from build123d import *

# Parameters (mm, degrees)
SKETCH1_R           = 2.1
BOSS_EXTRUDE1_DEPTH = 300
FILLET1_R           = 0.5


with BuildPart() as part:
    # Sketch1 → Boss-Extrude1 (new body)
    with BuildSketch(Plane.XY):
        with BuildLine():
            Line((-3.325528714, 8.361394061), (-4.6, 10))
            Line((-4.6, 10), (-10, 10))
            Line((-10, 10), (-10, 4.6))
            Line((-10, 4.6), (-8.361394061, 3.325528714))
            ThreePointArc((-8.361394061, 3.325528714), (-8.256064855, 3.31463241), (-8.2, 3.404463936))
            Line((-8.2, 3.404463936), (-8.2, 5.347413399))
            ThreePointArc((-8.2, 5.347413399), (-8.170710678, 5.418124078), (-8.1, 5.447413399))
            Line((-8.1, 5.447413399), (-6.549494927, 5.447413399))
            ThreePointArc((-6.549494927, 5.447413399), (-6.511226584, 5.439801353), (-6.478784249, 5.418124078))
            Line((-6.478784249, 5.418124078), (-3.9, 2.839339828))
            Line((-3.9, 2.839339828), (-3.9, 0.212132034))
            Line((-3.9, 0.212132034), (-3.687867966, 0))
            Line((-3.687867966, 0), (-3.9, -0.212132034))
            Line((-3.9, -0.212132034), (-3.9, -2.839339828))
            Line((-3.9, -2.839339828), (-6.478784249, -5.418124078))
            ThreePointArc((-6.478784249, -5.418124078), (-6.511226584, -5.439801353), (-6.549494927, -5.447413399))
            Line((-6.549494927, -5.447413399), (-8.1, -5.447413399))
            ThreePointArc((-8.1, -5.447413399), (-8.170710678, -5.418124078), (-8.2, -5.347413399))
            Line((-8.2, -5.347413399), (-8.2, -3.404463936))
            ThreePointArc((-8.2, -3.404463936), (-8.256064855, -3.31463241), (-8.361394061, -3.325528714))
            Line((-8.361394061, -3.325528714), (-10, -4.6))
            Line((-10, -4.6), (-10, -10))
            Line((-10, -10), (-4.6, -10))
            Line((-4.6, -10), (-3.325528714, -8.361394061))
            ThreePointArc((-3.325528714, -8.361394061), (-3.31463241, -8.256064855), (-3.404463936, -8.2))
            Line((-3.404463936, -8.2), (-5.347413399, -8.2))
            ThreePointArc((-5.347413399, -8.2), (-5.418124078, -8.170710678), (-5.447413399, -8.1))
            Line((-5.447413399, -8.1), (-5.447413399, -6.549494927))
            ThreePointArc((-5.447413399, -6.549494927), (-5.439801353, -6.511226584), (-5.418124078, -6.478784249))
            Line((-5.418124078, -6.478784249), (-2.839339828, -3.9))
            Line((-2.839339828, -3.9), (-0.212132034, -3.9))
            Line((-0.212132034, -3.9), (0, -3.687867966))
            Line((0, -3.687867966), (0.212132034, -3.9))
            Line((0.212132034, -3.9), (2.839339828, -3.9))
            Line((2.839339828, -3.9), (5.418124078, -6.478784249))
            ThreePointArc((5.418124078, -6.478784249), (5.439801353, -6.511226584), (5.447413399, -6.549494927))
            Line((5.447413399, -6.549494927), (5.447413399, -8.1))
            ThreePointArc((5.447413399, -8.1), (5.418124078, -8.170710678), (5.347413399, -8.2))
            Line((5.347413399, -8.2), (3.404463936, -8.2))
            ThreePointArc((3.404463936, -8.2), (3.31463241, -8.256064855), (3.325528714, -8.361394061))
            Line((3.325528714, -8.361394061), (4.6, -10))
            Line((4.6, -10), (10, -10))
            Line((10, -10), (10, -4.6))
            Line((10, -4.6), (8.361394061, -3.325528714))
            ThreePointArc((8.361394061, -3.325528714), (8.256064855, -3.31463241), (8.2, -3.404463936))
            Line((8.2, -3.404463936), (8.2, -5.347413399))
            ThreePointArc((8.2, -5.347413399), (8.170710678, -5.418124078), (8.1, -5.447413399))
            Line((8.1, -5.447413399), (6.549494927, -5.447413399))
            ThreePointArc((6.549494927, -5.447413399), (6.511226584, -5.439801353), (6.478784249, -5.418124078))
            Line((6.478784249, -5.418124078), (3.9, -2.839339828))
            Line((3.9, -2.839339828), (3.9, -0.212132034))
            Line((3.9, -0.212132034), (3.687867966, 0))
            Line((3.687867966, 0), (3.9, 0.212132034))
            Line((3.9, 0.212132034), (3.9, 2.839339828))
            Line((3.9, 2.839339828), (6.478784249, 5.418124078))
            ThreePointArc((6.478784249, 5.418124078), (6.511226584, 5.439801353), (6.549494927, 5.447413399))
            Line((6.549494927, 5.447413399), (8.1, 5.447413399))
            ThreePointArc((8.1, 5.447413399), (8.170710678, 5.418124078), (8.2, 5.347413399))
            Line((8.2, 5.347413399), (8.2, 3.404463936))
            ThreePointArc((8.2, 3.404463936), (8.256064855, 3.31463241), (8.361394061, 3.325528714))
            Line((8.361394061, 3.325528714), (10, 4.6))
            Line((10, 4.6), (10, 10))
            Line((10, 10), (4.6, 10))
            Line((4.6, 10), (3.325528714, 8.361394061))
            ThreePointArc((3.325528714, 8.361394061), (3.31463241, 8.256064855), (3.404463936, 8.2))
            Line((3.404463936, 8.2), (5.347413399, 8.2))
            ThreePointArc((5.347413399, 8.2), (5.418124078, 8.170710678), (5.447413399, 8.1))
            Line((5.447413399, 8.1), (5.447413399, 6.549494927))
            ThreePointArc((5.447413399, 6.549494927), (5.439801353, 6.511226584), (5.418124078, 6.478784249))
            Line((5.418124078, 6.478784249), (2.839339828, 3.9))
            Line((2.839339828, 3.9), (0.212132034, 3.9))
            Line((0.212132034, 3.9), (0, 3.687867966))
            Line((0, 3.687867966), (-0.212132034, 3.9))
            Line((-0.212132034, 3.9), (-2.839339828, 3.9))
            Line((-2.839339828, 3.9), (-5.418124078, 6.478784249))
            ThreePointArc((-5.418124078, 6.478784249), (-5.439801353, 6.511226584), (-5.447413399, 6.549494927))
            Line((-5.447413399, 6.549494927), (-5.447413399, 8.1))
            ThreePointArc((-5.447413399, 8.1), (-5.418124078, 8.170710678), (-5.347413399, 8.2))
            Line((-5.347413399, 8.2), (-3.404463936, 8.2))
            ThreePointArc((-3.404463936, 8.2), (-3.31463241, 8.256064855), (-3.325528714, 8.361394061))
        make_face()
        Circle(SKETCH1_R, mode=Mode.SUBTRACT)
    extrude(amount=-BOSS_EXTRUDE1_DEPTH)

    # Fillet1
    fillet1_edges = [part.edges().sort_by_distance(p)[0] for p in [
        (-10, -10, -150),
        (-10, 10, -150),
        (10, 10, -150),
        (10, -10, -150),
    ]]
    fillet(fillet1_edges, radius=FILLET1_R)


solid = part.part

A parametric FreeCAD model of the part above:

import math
import FreeCAD as App
import Part
import Sketcher


def edges_at(feature, points):
    """Names of the edges that pass closest to the given points."""
    edges = feature.Shape.Edges
    near = lambda p: min(range(len(edges)), key=lambda i: edges[i].distToShape(Part.Vertex(*p))[0])
    return sorted({f"Edge{near(p) + 1}" for p in points})

doc = App.newDocument("Part")
body = doc.addObject("PartDesign::Body", "Body")

# Sketch on XY plane
sketch1 = doc.addObject("Sketcher::SketchObject", "Sketch")
body.addObject(sketch1)
sketch1.AttachmentSupport = (doc.XY_Plane, [""])
sketch1.MapMode = "FlatFace"
sketch1.addGeometry(Part.LineSegment(App.Vector(-3.33, 8.36, 0), App.Vector(-4.6, 10, 0)), False)
sketch1.addGeometry(Part.LineSegment(App.Vector(-4.6, 10, 0), App.Vector(-10, 10, 0)), False)
sketch1.addGeometry(Part.LineSegment(App.Vector(-10, 10, 0), App.Vector(-10, 4.6, 0)), False)
sketch1.addGeometry(Part.LineSegment(App.Vector(-10, 4.6, 0), App.Vector(-8.36, 3.33, 0)), False)
sketch1.addGeometry(Part.ArcOfCircle(Part.Circle(App.Vector(-8.3, 3.4, 0), App.Vector(0, 0, 1), 0.1), math.radians(-128), math.radians(0)), False)
sketch1.addGeometry(Part.LineSegment(App.Vector(-8.2, 3.4, 0), App.Vector(-8.2, 5.35, 0)), False)
sketch1.addGeometry(Part.ArcOfCircle(Part.Circle(App.Vector(-8.1, 5.35, 0), App.Vector(0, 0, 1), 0.1), math.radians(90), math.radians(180)), False)
sketch1.addGeometry(Part.LineSegment(App.Vector(-8.1, 5.45, 0), App.Vector(-6.55, 5.45, 0)), False)
sketch1.addGeometry(Part.ArcOfCircle(Part.Circle(App.Vector(-6.55, 5.35, 0), App.Vector(0, 0, 1), 0.1), math.radians(45), math.radians(90)), False)
sketch1.addGeometry(Part.LineSegment(App.Vector(-6.48, 5.42, 0), App.Vector(-3.9, 2.84, 0)), False)
sketch1.addGeometry(Part.LineSegment(App.Vector(-3.9, 2.84, 0), App.Vector(-3.9, 0.21, 0)), False)
sketch1.addGeometry(Part.LineSegment(App.Vector(-3.9, 0.21, 0), App.Vector(-3.69, 0, 0)), False)
sketch1.addGeometry(Part.LineSegment(App.Vector(-3.69, 0, 0), App.Vector(-3.9, -0.21, 0)), False)
sketch1.addGeometry(Part.LineSegment(App.Vector(-3.9, -0.21, 0), App.Vector(-3.9, -2.84, 0)), False)
sketch1.addGeometry(Part.LineSegment(App.Vector(-3.9, -2.84, 0), App.Vector(-6.48, -5.42, 0)), False)
sketch1.addGeometry(Part.ArcOfCircle(Part.Circle(App.Vector(-6.55, -5.35, 0), App.Vector(0, 0, 1), 0.1), math.radians(-90), math.radians(-45)), False)
sketch1.addGeometry(Part.LineSegment(App.Vector(-6.55, -5.45, 0), App.Vector(-8.1, -5.45, 0)), False)
sketch1.addGeometry(Part.ArcOfCircle(Part.Circle(App.Vector(-8.1, -5.35, 0), App.Vector(0, 0, 1), 0.1), math.radians(180), math.radians(270)), False)
sketch1.addGeometry(Part.LineSegment(App.Vector(-8.2, -5.35, 0), App.Vector(-8.2, -3.4, 0)), False)
sketch1.addGeometry(Part.ArcOfCircle(Part.Circle(App.Vector(-8.3, -3.4, 0), App.Vector(0, 0, 1), 0.1), math.radians(0), math.radians(128)), False)
sketch1.addGeometry(Part.LineSegment(App.Vector(-8.36, -3.33, 0), App.Vector(-10, -4.6, 0)), False)
sketch1.addGeometry(Part.LineSegment(App.Vector(-10, -4.6, 0), App.Vector(-10, -10, 0)), False)
sketch1.addGeometry(Part.LineSegment(App.Vector(-10, -10, 0), App.Vector(-4.6, -10, 0)), False)
sketch1.addGeometry(Part.LineSegment(App.Vector(-4.6, -10, 0), App.Vector(-3.33, -8.36, 0)), False)
sketch1.addGeometry(Part.ArcOfCircle(Part.Circle(App.Vector(-3.4, -8.3, 0), App.Vector(0, 0, 1), 0.1), math.radians(-38), math.radians(90)), False)
sketch1.addGeometry(Part.LineSegment(App.Vector(-3.4, -8.2, 0), App.Vector(-5.35, -8.2, 0)), False)
sketch1.addGeometry(Part.ArcOfCircle(Part.Circle(App.Vector(-5.35, -8.1, 0), App.Vector(0, 0, 1), 0.1), math.radians(180), math.radians(270)), False)
sketch1.addGeometry(Part.LineSegment(App.Vector(-5.45, -8.1, 0), App.Vector(-5.45, -6.55, 0)), False)
sketch1.addGeometry(Part.ArcOfCircle(Part.Circle(App.Vector(-5.35, -6.55, 0), App.Vector(0, 0, 1), 0.1), math.radians(135), math.radians(180)), False)
sketch1.addGeometry(Part.LineSegment(App.Vector(-5.42, -6.48, 0), App.Vector(-2.84, -3.9, 0)), False)
sketch1.addGeometry(Part.LineSegment(App.Vector(-2.84, -3.9, 0), App.Vector(-0.21, -3.9, 0)), False)
sketch1.addGeometry(Part.LineSegment(App.Vector(-0.21, -3.9, 0), App.Vector(0, -3.69, 0)), False)
sketch1.addGeometry(Part.LineSegment(App.Vector(0, -3.69, 0), App.Vector(0.21, -3.9, 0)), False)
sketch1.addGeometry(Part.LineSegment(App.Vector(0.21, -3.9, 0), App.Vector(2.84, -3.9, 0)), False)
sketch1.addGeometry(Part.LineSegment(App.Vector(2.84, -3.9, 0), App.Vector(5.42, -6.48, 0)), False)
sketch1.addGeometry(Part.ArcOfCircle(Part.Circle(App.Vector(5.35, -6.55, 0), App.Vector(0, 0, 1), 0.1), math.radians(0), math.radians(45)), False)
sketch1.addGeometry(Part.LineSegment(App.Vector(5.45, -6.55, 0), App.Vector(5.45, -8.1, 0)), False)
sketch1.addGeometry(Part.ArcOfCircle(Part.Circle(App.Vector(5.35, -8.1, 0), App.Vector(0, 0, 1), 0.1), math.radians(-90), math.radians(0)), False)
sketch1.addGeometry(Part.LineSegment(App.Vector(5.35, -8.2, 0), App.Vector(3.4, -8.2, 0)), False)
sketch1.addGeometry(Part.ArcOfCircle(Part.Circle(App.Vector(3.4, -8.3, 0), App.Vector(0, 0, 1), 0.1), math.radians(90), math.radians(218)), False)
sketch1.addGeometry(Part.LineSegment(App.Vector(3.33, -8.36, 0), App.Vector(4.6, -10, 0)), False)
sketch1.addGeometry(Part.LineSegment(App.Vector(4.6, -10, 0), App.Vector(10, -10, 0)), False)
sketch1.addGeometry(Part.LineSegment(App.Vector(10, -10, 0), App.Vector(10, -4.6, 0)), False)
sketch1.addGeometry(Part.LineSegment(App.Vector(10, -4.6, 0), App.Vector(8.36, -3.33, 0)), False)
sketch1.addGeometry(Part.ArcOfCircle(Part.Circle(App.Vector(8.3, -3.4, 0), App.Vector(0, 0, 1), 0.1), math.radians(52), math.radians(180)), False)
sketch1.addGeometry(Part.LineSegment(App.Vector(8.2, -3.4, 0), App.Vector(8.2, -5.35, 0)), False)
sketch1.addGeometry(Part.ArcOfCircle(Part.Circle(App.Vector(8.1, -5.35, 0), App.Vector(0, 0, 1), 0.1), math.radians(-90), math.radians(0)), False)
sketch1.addGeometry(Part.LineSegment(App.Vector(8.1, -5.45, 0), App.Vector(6.55, -5.45, 0)), False)
sketch1.addGeometry(Part.ArcOfCircle(Part.Circle(App.Vector(6.55, -5.35, 0), App.Vector(0, 0, 1), 0.1), math.radians(-135), math.radians(-90)), False)
sketch1.addGeometry(Part.LineSegment(App.Vector(6.48, -5.42, 0), App.Vector(3.9, -2.84, 0)), False)
sketch1.addGeometry(Part.LineSegment(App.Vector(3.9, -2.84, 0), App.Vector(3.9, -0.21, 0)), False)
sketch1.addGeometry(Part.LineSegment(App.Vector(3.9, -0.21, 0), App.Vector(3.69, 0, 0)), False)
sketch1.addGeometry(Part.LineSegment(App.Vector(3.69, 0, 0), App.Vector(3.9, 0.21, 0)), False)
sketch1.addGeometry(Part.LineSegment(App.Vector(3.9, 0.21, 0), App.Vector(3.9, 2.84, 0)), False)
sketch1.addGeometry(Part.LineSegment(App.Vector(3.9, 2.84, 0), App.Vector(6.48, 5.42, 0)), False)
sketch1.addGeometry(Part.ArcOfCircle(Part.Circle(App.Vector(6.55, 5.35, 0), App.Vector(0, 0, 1), 0.1), math.radians(90), math.radians(135)), False)
sketch1.addGeometry(Part.LineSegment(App.Vector(6.55, 5.45, 0), App.Vector(8.1, 5.45, 0)), False)
sketch1.addGeometry(Part.ArcOfCircle(Part.Circle(App.Vector(8.1, 5.35, 0), App.Vector(0, 0, 1), 0.1), math.radians(0), math.radians(90)), False)
sketch1.addGeometry(Part.LineSegment(App.Vector(8.2, 5.35, 0), App.Vector(8.2, 3.4, 0)), False)
sketch1.addGeometry(Part.ArcOfCircle(Part.Circle(App.Vector(8.3, 3.4, 0), App.Vector(0, 0, 1), 0.1), math.radians(180), math.radians(308)), False)
sketch1.addGeometry(Part.LineSegment(App.Vector(8.36, 3.33, 0), App.Vector(10, 4.6, 0)), False)
sketch1.addGeometry(Part.LineSegment(App.Vector(10, 4.6, 0), App.Vector(10, 10, 0)), False)
sketch1.addGeometry(Part.LineSegment(App.Vector(10, 10, 0), App.Vector(4.6, 10, 0)), False)
sketch1.addGeometry(Part.LineSegment(App.Vector(4.6, 10, 0), App.Vector(3.33, 8.36, 0)), False)
sketch1.addGeometry(Part.ArcOfCircle(Part.Circle(App.Vector(3.4, 8.3, 0), App.Vector(0, 0, 1), 0.1), math.radians(142), math.radians(270)), False)
sketch1.addGeometry(Part.LineSegment(App.Vector(3.4, 8.2, 0), App.Vector(5.35, 8.2, 0)), False)
sketch1.addGeometry(Part.ArcOfCircle(Part.Circle(App.Vector(5.35, 8.1, 0), App.Vector(0, 0, 1), 0.1), math.radians(0), math.radians(90)), False)
sketch1.addGeometry(Part.LineSegment(App.Vector(5.45, 8.1, 0), App.Vector(5.45, 6.55, 0)), False)
sketch1.addGeometry(Part.ArcOfCircle(Part.Circle(App.Vector(5.35, 6.55, 0), App.Vector(0, 0, 1), 0.1), math.radians(-45), math.radians(0)), False)
sketch1.addGeometry(Part.LineSegment(App.Vector(5.42, 6.48, 0), App.Vector(2.84, 3.9, 0)), False)
sketch1.addGeometry(Part.LineSegment(App.Vector(2.84, 3.9, 0), App.Vector(0.21, 3.9, 0)), False)
sketch1.addGeometry(Part.LineSegment(App.Vector(0.21, 3.9, 0), App.Vector(0, 3.69, 0)), False)
sketch1.addGeometry(Part.LineSegment(App.Vector(0, 3.69, 0), App.Vector(-0.21, 3.9, 0)), False)
sketch1.addGeometry(Part.LineSegment(App.Vector(-0.21, 3.9, 0), App.Vector(-2.84, 3.9, 0)), False)
sketch1.addGeometry(Part.LineSegment(App.Vector(-2.84, 3.9, 0), App.Vector(-5.42, 6.48, 0)), False)
sketch1.addGeometry(Part.ArcOfCircle(Part.Circle(App.Vector(-5.35, 6.55, 0), App.Vector(0, 0, 1), 0.1), math.radians(180), math.radians(225)), False)
sketch1.addGeometry(Part.LineSegment(App.Vector(-5.45, 6.55, 0), App.Vector(-5.45, 8.1, 0)), False)
sketch1.addGeometry(Part.ArcOfCircle(Part.Circle(App.Vector(-5.35, 8.1, 0), App.Vector(0, 0, 1), 0.1), math.radians(90), math.radians(180)), False)
sketch1.addGeometry(Part.LineSegment(App.Vector(-5.35, 8.2, 0), App.Vector(-3.4, 8.2, 0)), False)
sketch1.addGeometry(Part.ArcOfCircle(Part.Circle(App.Vector(-3.4, 8.3, 0), App.Vector(0, 0, 1), 0.1), math.radians(-90), math.radians(38)), False)
sketch1.addGeometry(Part.Circle(App.Vector(0, 0, 0), App.Vector(0, 0, 1), 2.1), False)
sketch1.addConstraint(Sketcher.Constraint("Coincident", 0, 2, 1, 1))
sketch1.addConstraint(Sketcher.Constraint("Coincident", 1, 2, 2, 1))
sketch1.addConstraint(Sketcher.Constraint("Coincident", 2, 2, 3, 1))
sketch1.addConstraint(Sketcher.Constraint("Tangent", 3, 2, 4, 1))
sketch1.addConstraint(Sketcher.Constraint("Tangent", 4, 2, 5, 1))
sketch1.addConstraint(Sketcher.Constraint("Tangent", 5, 2, 6, 2))
sketch1.addConstraint(Sketcher.Constraint("Tangent", 6, 1, 7, 1))
sketch1.addConstraint(Sketcher.Constraint("Tangent", 7, 2, 8, 2))
sketch1.addConstraint(Sketcher.Constraint("Tangent", 8, 1, 9, 1))
sketch1.addConstraint(Sketcher.Constraint("Coincident", 9, 2, 10, 1))
sketch1.addConstraint(Sketcher.Constraint("Coincident", 10, 2, 11, 1))
sketch1.addConstraint(Sketcher.Constraint("Coincident", 11, 2, 12, 1))
sketch1.addConstraint(Sketcher.Constraint("Coincident", 12, 2, 13, 1))
sketch1.addConstraint(Sketcher.Constraint("Coincident", 13, 2, 14, 1))
sketch1.addConstraint(Sketcher.Constraint("Tangent", 14, 2, 15, 2))
sketch1.addConstraint(Sketcher.Constraint("Tangent", 15, 1, 16, 1))
sketch1.addConstraint(Sketcher.Constraint("Tangent", 16, 2, 17, 2))
sketch1.addConstraint(Sketcher.Constraint("Tangent", 17, 1, 18, 1))
sketch1.addConstraint(Sketcher.Constraint("Tangent", 18, 2, 19, 1))
sketch1.addConstraint(Sketcher.Constraint("Tangent", 19, 2, 20, 1))
sketch1.addConstraint(Sketcher.Constraint("Coincident", 20, 2, 21, 1))
sketch1.addConstraint(Sketcher.Constraint("Coincident", 21, 2, 22, 1))
sketch1.addConstraint(Sketcher.Constraint("Coincident", 22, 2, 23, 1))
sketch1.addConstraint(Sketcher.Constraint("Tangent", 23, 2, 24, 1))
sketch1.addConstraint(Sketcher.Constraint("Tangent", 24, 2, 25, 1))
sketch1.addConstraint(Sketcher.Constraint("Tangent", 25, 2, 26, 2))
sketch1.addConstraint(Sketcher.Constraint("Tangent", 26, 1, 27, 1))
sketch1.addConstraint(Sketcher.Constraint("Tangent", 27, 2, 28, 2))
sketch1.addConstraint(Sketcher.Constraint("Tangent", 28, 1, 29, 1))
sketch1.addConstraint(Sketcher.Constraint("Coincident", 29, 2, 30, 1))
sketch1.addConstraint(Sketcher.Constraint("Coincident", 30, 2, 31, 1))
sketch1.addConstraint(Sketcher.Constraint("Coincident", 31, 2, 32, 1))
sketch1.addConstraint(Sketcher.Constraint("Coincident", 32, 2, 33, 1))
sketch1.addConstraint(Sketcher.Constraint("Coincident", 33, 2, 34, 1))
sketch1.addConstraint(Sketcher.Constraint("Tangent", 34, 2, 35, 2))
sketch1.addConstraint(Sketcher.Constraint("Tangent", 35, 1, 36, 1))
sketch1.addConstraint(Sketcher.Constraint("Tangent", 36, 2, 37, 2))
sketch1.addConstraint(Sketcher.Constraint("Tangent", 37, 1, 38, 1))
sketch1.addConstraint(Sketcher.Constraint("Tangent", 38, 2, 39, 1))
sketch1.addConstraint(Sketcher.Constraint("Tangent", 39, 2, 40, 1))
sketch1.addConstraint(Sketcher.Constraint("Coincident", 40, 2, 41, 1))
sketch1.addConstraint(Sketcher.Constraint("Coincident", 41, 2, 42, 1))
sketch1.addConstraint(Sketcher.Constraint("Coincident", 42, 2, 43, 1))
sketch1.addConstraint(Sketcher.Constraint("Tangent", 43, 2, 44, 1))
sketch1.addConstraint(Sketcher.Constraint("Tangent", 44, 2, 45, 1))
sketch1.addConstraint(Sketcher.Constraint("Tangent", 45, 2, 46, 2))
sketch1.addConstraint(Sketcher.Constraint("Tangent", 46, 1, 47, 1))
sketch1.addConstraint(Sketcher.Constraint("Tangent", 47, 2, 48, 2))
sketch1.addConstraint(Sketcher.Constraint("Tangent", 48, 1, 49, 1))
sketch1.addConstraint(Sketcher.Constraint("Coincident", 49, 2, 50, 1))
sketch1.addConstraint(Sketcher.Constraint("Coincident", 50, 2, 51, 1))
sketch1.addConstraint(Sketcher.Constraint("Coincident", 51, 2, 52, 1))
sketch1.addConstraint(Sketcher.Constraint("Coincident", 52, 2, 53, 1))
sketch1.addConstraint(Sketcher.Constraint("Coincident", 53, 2, 54, 1))
sketch1.addConstraint(Sketcher.Constraint("Tangent", 54, 2, 55, 2))
sketch1.addConstraint(Sketcher.Constraint("Tangent", 55, 1, 56, 1))
sketch1.addConstraint(Sketcher.Constraint("Tangent", 56, 2, 57, 2))
sketch1.addConstraint(Sketcher.Constraint("Tangent", 57, 1, 58, 1))
sketch1.addConstraint(Sketcher.Constraint("Tangent", 58, 2, 59, 1))
sketch1.addConstraint(Sketcher.Constraint("Tangent", 59, 2, 60, 1))
sketch1.addConstraint(Sketcher.Constraint("Coincident", 60, 2, 61, 1))
sketch1.addConstraint(Sketcher.Constraint("Coincident", 61, 2, 62, 1))
sketch1.addConstraint(Sketcher.Constraint("Coincident", 62, 2, 63, 1))
sketch1.addConstraint(Sketcher.Constraint("Tangent", 63, 2, 64, 1))
sketch1.addConstraint(Sketcher.Constraint("Tangent", 64, 2, 65, 1))
sketch1.addConstraint(Sketcher.Constraint("Tangent", 65, 2, 66, 2))
sketch1.addConstraint(Sketcher.Constraint("Tangent", 66, 1, 67, 1))
sketch1.addConstraint(Sketcher.Constraint("Tangent", 67, 2, 68, 2))
sketch1.addConstraint(Sketcher.Constraint("Tangent", 68, 1, 69, 1))
sketch1.addConstraint(Sketcher.Constraint("Coincident", 69, 2, 70, 1))
sketch1.addConstraint(Sketcher.Constraint("Coincident", 70, 2, 71, 1))
sketch1.addConstraint(Sketcher.Constraint("Coincident", 71, 2, 72, 1))
sketch1.addConstraint(Sketcher.Constraint("Coincident", 72, 2, 73, 1))
sketch1.addConstraint(Sketcher.Constraint("Coincident", 73, 2, 74, 1))
sketch1.addConstraint(Sketcher.Constraint("Tangent", 74, 2, 75, 2))
sketch1.addConstraint(Sketcher.Constraint("Tangent", 75, 1, 76, 1))
sketch1.addConstraint(Sketcher.Constraint("Tangent", 76, 2, 77, 2))
sketch1.addConstraint(Sketcher.Constraint("Tangent", 77, 1, 78, 1))
sketch1.addConstraint(Sketcher.Constraint("Tangent", 78, 2, 79, 1))
sketch1.addConstraint(Sketcher.Constraint("Tangent", 79, 2, 0, 1))
sketch1.addConstraint(Sketcher.Constraint("Horizontal", 1))
sketch1.addConstraint(Sketcher.Constraint("Vertical", 2))
sketch1.addConstraint(Sketcher.Constraint("Vertical", 5))
sketch1.addConstraint(Sketcher.Constraint("Horizontal", 7))
sketch1.addConstraint(Sketcher.Constraint("Vertical", 10))
sketch1.addConstraint(Sketcher.Constraint("Vertical", 13))
sketch1.addConstraint(Sketcher.Constraint("Horizontal", 16))
sketch1.addConstraint(Sketcher.Constraint("Vertical", 18))
sketch1.addConstraint(Sketcher.Constraint("Vertical", 21))
sketch1.addConstraint(Sketcher.Constraint("Horizontal", 22))
sketch1.addConstraint(Sketcher.Constraint("Horizontal", 25))
sketch1.addConstraint(Sketcher.Constraint("Vertical", 27))
sketch1.addConstraint(Sketcher.Constraint("Horizontal", 30))
sketch1.addConstraint(Sketcher.Constraint("Horizontal", 33))
sketch1.addConstraint(Sketcher.Constraint("Vertical", 36))
sketch1.addConstraint(Sketcher.Constraint("Horizontal", 38))
sketch1.addConstraint(Sketcher.Constraint("Horizontal", 41))
sketch1.addConstraint(Sketcher.Constraint("Vertical", 42))
sketch1.addConstraint(Sketcher.Constraint("Vertical", 45))
sketch1.addConstraint(Sketcher.Constraint("Horizontal", 47))
sketch1.addConstraint(Sketcher.Constraint("Vertical", 50))
sketch1.addConstraint(Sketcher.Constraint("Vertical", 53))
sketch1.addConstraint(Sketcher.Constraint("Horizontal", 56))
sketch1.addConstraint(Sketcher.Constraint("Vertical", 58))
sketch1.addConstraint(Sketcher.Constraint("Vertical", 61))
sketch1.addConstraint(Sketcher.Constraint("Horizontal", 62))
sketch1.addConstraint(Sketcher.Constraint("Horizontal", 65))
sketch1.addConstraint(Sketcher.Constraint("Vertical", 67))
sketch1.addConstraint(Sketcher.Constraint("Horizontal", 70))
sketch1.addConstraint(Sketcher.Constraint("Horizontal", 73))
sketch1.addConstraint(Sketcher.Constraint("Vertical", 76))
sketch1.addConstraint(Sketcher.Constraint("Horizontal", 78))
sketch1.addConstraint(Sketcher.Constraint("Coincident", 80, 3, -1, 1))
sketch1.addConstraint(Sketcher.Constraint("Equal", 4, 6))
sketch1.addConstraint(Sketcher.Constraint("Equal", 6, 8))
sketch1.addConstraint(Sketcher.Constraint("Equal", 8, 15))
sketch1.addConstraint(Sketcher.Constraint("Equal", 15, 17))
sketch1.addConstraint(Sketcher.Constraint("Equal", 17, 19))
sketch1.addConstraint(Sketcher.Constraint("Equal", 19, 24))
sketch1.addConstraint(Sketcher.Constraint("Equal", 24, 26))
sketch1.addConstraint(Sketcher.Constraint("Equal", 26, 28))
sketch1.addConstraint(Sketcher.Constraint("Equal", 28, 35))
sketch1.addConstraint(Sketcher.Constraint("Equal", 35, 37))
sketch1.addConstraint(Sketcher.Constraint("Equal", 37, 39))
sketch1.addConstraint(Sketcher.Constraint("Equal", 39, 44))
sketch1.addConstraint(Sketcher.Constraint("Equal", 44, 46))
sketch1.addConstraint(Sketcher.Constraint("Equal", 46, 48))
sketch1.addConstraint(Sketcher.Constraint("Equal", 48, 55))
sketch1.addConstraint(Sketcher.Constraint("Equal", 55, 57))
sketch1.addConstraint(Sketcher.Constraint("Equal", 57, 59))
sketch1.addConstraint(Sketcher.Constraint("Equal", 59, 64))
sketch1.addConstraint(Sketcher.Constraint("Equal", 64, 66))
sketch1.addConstraint(Sketcher.Constraint("Equal", 66, 68))
sketch1.addConstraint(Sketcher.Constraint("Equal", 68, 75))
sketch1.addConstraint(Sketcher.Constraint("Equal", 75, 77))
sketch1.addConstraint(Sketcher.Constraint("Equal", 77, 79))
sketch1.addConstraint(Sketcher.Constraint("Symmetric", 4, 3, 44, 3, -1, 1))
sketch1.addConstraint(Sketcher.Constraint("Symmetric", 8, 3, 48, 3, -1, 1))
sketch1.addConstraint(Sketcher.Constraint("Symmetric", 15, 3, 55, 3, -1, 1))
sketch1.addConstraint(Sketcher.Constraint("Symmetric", 19, 3, 59, 3, -1, 1))
sketch1.addConstraint(Sketcher.Constraint("Symmetric", 24, 3, 64, 3, -1, 1))
sketch1.addConstraint(Sketcher.Constraint("Symmetric", 28, 3, 68, 3, -1, 1))
sketch1.addConstraint(Sketcher.Constraint("Symmetric", 35, 3, 75, 3, -1, 1))
sketch1.addConstraint(Sketcher.Constraint("Symmetric", 39, 3, 79, 3, -1, 1))
sketch1.addConstraint(Sketcher.Constraint("Symmetric", 0, 2, 40, 2, -1, 1))
sketch1.addConstraint(Sketcher.Constraint("Symmetric", 2, 2, 42, 2, -1, 1))
sketch1.addConstraint(Sketcher.Constraint("Symmetric", 9, 2, 49, 2, -1, 1))
sketch1.addConstraint(Sketcher.Constraint("Symmetric", 11, 2, 51, 2, -1, 1))
sketch1.addConstraint(Sketcher.Constraint("Symmetric", 12, 2, 52, 2, -1, 1))
sketch1.addConstraint(Sketcher.Constraint("Symmetric", 20, 2, 60, 2, -1, 1))
sketch1.addConstraint(Sketcher.Constraint("Symmetric", 22, 2, 62, 2, -1, 1))
sketch1.addConstraint(Sketcher.Constraint("Symmetric", 29, 2, 69, 2, -1, 1))
sketch1.addConstraint(Sketcher.Constraint("Symmetric", 31, 2, 71, 2, -1, 1))
sketch1.addConstraint(Sketcher.Constraint("Symmetric", 32, 2, 72, 2, -1, 1))
sketch1.addConstraint(Sketcher.Constraint("Symmetric", 28, 3, 35, 3, -2))
sketch1.addConstraint(Sketcher.Constraint("Symmetric", 24, 3, 39, 3, -2))
sketch1.addConstraint(Sketcher.Constraint("Symmetric", 19, 3, 44, 3, -2))
sketch1.addConstraint(Sketcher.Constraint("Symmetric", 15, 3, 48, 3, -2))
sketch1.addConstraint(Sketcher.Constraint("Symmetric", 30, 2, 32, 2, -2))
sketch1.addConstraint(Sketcher.Constraint("Symmetric", 22, 2, 40, 2, -2))
sketch1.addConstraint(Sketcher.Constraint("Symmetric", 20, 2, 42, 2, -2))
sketch1.addConstraint(Sketcher.Constraint("Symmetric", 13, 2, 49, 2, -2))
sketch1.addConstraint(Sketcher.Constraint("PointOnObject", 11, 2, -1))
sketch1.addConstraint(Sketcher.Constraint("PointOnObject", 31, 2, -2))
sketch1.addConstraint(Sketcher.Constraint("Parallel", 9, 11))
sketch1.addConstraint(Sketcher.Constraint("Perpendicular", 11, 12))
sketch1.addConstraint(Sketcher.Constraint("Parallel", 12, 14))
sketch1.addConstraint(Sketcher.Constraint("Perpendicular", 0, 20))
sketch1.addConstraint(Sketcher.Constraint("Parallel", 14, 29))
sketch1.addConstraint(Sketcher.Constraint("Parallel", 29, 31))
sketch1.addConstraint(Sketcher.Constraint("Parallel", 32, 34))
sketch1.addConstraint(Sketcher.Constraint("Parallel", 49, 51))
sketch1.addConstraint(Sketcher.Constraint("Parallel", 52, 54))
sketch1.addConstraint(Sketcher.Constraint("Parallel", 69, 71))
sketch1.addConstraint(Sketcher.Constraint("Parallel", 72, 74))
sketch1.addConstraint(Sketcher.Constraint("Equal", 62, 2))
sketch1.addConstraint(Sketcher.Constraint("Equal", 78, 5))
sketch1.addConstraint(Sketcher.Constraint("Equal", 73, 10))
sketch1.addConstraint(Sketcher.Constraint("Equal", 56, 27))
sketch1.addConstraint(Sketcher.Constraint("Equal", 0, 3))
sketch1.addConstraint(Sketcher.Constraint("Equal", 14, 29))
sketch1.addConstraint(Sketcher.Constraint("Equal", 12, 31))
sketch1.addConstraint(Sketcher.Constraint("Diameter", 80, 4.2))
sketch1.addConstraint(Sketcher.Constraint("Radius", 4, 0.1))
sketch1.addConstraint(Sketcher.Constraint("DistanceX", 1, 2, 1, 1, 5.4))
sketch1.addConstraint(Sketcher.Constraint("DistanceY", -1, 1, 0, 2, 10.0))
sketch1.addConstraint(Sketcher.Constraint("Distance", 11, 0.3))
sketch1.addConstraint(Sketcher.Constraint("DistanceX", 4, 3, -1, 1, 8.3))
sketch1.addConstraint(Sketcher.Constraint("DistanceX", 9, 2, -1, 1, 3.9))
sketch1.addConstraint(Sketcher.Constraint("DistanceX", 25, 2, 25, 1, 1.942949))
sketch1.addConstraint(Sketcher.Constraint("Distance", 9, 3.646952))
sketch1.addConstraint(Sketcher.Constraint("DistanceX", 30, 1, 30, 2, 2.627208))
pad1 = doc.addObject("PartDesign::Pad", "Pad")
body.addObject(pad1)
pad1.Profile = sketch1
pad1.Length = 300
pad1.Reversed = True
doc.recompute()

fillet = doc.addObject("PartDesign::Fillet", "Fillet")
body.addObject(fillet)
fillet.Base = (pad1, edges_at(pad1, [
    (-10, -10, -150),
    (-10, 10, -150),
    (10, 10, -150),
    (10, -10, -150),
]))
fillet.Radius = 0.5

doc.recompute()
